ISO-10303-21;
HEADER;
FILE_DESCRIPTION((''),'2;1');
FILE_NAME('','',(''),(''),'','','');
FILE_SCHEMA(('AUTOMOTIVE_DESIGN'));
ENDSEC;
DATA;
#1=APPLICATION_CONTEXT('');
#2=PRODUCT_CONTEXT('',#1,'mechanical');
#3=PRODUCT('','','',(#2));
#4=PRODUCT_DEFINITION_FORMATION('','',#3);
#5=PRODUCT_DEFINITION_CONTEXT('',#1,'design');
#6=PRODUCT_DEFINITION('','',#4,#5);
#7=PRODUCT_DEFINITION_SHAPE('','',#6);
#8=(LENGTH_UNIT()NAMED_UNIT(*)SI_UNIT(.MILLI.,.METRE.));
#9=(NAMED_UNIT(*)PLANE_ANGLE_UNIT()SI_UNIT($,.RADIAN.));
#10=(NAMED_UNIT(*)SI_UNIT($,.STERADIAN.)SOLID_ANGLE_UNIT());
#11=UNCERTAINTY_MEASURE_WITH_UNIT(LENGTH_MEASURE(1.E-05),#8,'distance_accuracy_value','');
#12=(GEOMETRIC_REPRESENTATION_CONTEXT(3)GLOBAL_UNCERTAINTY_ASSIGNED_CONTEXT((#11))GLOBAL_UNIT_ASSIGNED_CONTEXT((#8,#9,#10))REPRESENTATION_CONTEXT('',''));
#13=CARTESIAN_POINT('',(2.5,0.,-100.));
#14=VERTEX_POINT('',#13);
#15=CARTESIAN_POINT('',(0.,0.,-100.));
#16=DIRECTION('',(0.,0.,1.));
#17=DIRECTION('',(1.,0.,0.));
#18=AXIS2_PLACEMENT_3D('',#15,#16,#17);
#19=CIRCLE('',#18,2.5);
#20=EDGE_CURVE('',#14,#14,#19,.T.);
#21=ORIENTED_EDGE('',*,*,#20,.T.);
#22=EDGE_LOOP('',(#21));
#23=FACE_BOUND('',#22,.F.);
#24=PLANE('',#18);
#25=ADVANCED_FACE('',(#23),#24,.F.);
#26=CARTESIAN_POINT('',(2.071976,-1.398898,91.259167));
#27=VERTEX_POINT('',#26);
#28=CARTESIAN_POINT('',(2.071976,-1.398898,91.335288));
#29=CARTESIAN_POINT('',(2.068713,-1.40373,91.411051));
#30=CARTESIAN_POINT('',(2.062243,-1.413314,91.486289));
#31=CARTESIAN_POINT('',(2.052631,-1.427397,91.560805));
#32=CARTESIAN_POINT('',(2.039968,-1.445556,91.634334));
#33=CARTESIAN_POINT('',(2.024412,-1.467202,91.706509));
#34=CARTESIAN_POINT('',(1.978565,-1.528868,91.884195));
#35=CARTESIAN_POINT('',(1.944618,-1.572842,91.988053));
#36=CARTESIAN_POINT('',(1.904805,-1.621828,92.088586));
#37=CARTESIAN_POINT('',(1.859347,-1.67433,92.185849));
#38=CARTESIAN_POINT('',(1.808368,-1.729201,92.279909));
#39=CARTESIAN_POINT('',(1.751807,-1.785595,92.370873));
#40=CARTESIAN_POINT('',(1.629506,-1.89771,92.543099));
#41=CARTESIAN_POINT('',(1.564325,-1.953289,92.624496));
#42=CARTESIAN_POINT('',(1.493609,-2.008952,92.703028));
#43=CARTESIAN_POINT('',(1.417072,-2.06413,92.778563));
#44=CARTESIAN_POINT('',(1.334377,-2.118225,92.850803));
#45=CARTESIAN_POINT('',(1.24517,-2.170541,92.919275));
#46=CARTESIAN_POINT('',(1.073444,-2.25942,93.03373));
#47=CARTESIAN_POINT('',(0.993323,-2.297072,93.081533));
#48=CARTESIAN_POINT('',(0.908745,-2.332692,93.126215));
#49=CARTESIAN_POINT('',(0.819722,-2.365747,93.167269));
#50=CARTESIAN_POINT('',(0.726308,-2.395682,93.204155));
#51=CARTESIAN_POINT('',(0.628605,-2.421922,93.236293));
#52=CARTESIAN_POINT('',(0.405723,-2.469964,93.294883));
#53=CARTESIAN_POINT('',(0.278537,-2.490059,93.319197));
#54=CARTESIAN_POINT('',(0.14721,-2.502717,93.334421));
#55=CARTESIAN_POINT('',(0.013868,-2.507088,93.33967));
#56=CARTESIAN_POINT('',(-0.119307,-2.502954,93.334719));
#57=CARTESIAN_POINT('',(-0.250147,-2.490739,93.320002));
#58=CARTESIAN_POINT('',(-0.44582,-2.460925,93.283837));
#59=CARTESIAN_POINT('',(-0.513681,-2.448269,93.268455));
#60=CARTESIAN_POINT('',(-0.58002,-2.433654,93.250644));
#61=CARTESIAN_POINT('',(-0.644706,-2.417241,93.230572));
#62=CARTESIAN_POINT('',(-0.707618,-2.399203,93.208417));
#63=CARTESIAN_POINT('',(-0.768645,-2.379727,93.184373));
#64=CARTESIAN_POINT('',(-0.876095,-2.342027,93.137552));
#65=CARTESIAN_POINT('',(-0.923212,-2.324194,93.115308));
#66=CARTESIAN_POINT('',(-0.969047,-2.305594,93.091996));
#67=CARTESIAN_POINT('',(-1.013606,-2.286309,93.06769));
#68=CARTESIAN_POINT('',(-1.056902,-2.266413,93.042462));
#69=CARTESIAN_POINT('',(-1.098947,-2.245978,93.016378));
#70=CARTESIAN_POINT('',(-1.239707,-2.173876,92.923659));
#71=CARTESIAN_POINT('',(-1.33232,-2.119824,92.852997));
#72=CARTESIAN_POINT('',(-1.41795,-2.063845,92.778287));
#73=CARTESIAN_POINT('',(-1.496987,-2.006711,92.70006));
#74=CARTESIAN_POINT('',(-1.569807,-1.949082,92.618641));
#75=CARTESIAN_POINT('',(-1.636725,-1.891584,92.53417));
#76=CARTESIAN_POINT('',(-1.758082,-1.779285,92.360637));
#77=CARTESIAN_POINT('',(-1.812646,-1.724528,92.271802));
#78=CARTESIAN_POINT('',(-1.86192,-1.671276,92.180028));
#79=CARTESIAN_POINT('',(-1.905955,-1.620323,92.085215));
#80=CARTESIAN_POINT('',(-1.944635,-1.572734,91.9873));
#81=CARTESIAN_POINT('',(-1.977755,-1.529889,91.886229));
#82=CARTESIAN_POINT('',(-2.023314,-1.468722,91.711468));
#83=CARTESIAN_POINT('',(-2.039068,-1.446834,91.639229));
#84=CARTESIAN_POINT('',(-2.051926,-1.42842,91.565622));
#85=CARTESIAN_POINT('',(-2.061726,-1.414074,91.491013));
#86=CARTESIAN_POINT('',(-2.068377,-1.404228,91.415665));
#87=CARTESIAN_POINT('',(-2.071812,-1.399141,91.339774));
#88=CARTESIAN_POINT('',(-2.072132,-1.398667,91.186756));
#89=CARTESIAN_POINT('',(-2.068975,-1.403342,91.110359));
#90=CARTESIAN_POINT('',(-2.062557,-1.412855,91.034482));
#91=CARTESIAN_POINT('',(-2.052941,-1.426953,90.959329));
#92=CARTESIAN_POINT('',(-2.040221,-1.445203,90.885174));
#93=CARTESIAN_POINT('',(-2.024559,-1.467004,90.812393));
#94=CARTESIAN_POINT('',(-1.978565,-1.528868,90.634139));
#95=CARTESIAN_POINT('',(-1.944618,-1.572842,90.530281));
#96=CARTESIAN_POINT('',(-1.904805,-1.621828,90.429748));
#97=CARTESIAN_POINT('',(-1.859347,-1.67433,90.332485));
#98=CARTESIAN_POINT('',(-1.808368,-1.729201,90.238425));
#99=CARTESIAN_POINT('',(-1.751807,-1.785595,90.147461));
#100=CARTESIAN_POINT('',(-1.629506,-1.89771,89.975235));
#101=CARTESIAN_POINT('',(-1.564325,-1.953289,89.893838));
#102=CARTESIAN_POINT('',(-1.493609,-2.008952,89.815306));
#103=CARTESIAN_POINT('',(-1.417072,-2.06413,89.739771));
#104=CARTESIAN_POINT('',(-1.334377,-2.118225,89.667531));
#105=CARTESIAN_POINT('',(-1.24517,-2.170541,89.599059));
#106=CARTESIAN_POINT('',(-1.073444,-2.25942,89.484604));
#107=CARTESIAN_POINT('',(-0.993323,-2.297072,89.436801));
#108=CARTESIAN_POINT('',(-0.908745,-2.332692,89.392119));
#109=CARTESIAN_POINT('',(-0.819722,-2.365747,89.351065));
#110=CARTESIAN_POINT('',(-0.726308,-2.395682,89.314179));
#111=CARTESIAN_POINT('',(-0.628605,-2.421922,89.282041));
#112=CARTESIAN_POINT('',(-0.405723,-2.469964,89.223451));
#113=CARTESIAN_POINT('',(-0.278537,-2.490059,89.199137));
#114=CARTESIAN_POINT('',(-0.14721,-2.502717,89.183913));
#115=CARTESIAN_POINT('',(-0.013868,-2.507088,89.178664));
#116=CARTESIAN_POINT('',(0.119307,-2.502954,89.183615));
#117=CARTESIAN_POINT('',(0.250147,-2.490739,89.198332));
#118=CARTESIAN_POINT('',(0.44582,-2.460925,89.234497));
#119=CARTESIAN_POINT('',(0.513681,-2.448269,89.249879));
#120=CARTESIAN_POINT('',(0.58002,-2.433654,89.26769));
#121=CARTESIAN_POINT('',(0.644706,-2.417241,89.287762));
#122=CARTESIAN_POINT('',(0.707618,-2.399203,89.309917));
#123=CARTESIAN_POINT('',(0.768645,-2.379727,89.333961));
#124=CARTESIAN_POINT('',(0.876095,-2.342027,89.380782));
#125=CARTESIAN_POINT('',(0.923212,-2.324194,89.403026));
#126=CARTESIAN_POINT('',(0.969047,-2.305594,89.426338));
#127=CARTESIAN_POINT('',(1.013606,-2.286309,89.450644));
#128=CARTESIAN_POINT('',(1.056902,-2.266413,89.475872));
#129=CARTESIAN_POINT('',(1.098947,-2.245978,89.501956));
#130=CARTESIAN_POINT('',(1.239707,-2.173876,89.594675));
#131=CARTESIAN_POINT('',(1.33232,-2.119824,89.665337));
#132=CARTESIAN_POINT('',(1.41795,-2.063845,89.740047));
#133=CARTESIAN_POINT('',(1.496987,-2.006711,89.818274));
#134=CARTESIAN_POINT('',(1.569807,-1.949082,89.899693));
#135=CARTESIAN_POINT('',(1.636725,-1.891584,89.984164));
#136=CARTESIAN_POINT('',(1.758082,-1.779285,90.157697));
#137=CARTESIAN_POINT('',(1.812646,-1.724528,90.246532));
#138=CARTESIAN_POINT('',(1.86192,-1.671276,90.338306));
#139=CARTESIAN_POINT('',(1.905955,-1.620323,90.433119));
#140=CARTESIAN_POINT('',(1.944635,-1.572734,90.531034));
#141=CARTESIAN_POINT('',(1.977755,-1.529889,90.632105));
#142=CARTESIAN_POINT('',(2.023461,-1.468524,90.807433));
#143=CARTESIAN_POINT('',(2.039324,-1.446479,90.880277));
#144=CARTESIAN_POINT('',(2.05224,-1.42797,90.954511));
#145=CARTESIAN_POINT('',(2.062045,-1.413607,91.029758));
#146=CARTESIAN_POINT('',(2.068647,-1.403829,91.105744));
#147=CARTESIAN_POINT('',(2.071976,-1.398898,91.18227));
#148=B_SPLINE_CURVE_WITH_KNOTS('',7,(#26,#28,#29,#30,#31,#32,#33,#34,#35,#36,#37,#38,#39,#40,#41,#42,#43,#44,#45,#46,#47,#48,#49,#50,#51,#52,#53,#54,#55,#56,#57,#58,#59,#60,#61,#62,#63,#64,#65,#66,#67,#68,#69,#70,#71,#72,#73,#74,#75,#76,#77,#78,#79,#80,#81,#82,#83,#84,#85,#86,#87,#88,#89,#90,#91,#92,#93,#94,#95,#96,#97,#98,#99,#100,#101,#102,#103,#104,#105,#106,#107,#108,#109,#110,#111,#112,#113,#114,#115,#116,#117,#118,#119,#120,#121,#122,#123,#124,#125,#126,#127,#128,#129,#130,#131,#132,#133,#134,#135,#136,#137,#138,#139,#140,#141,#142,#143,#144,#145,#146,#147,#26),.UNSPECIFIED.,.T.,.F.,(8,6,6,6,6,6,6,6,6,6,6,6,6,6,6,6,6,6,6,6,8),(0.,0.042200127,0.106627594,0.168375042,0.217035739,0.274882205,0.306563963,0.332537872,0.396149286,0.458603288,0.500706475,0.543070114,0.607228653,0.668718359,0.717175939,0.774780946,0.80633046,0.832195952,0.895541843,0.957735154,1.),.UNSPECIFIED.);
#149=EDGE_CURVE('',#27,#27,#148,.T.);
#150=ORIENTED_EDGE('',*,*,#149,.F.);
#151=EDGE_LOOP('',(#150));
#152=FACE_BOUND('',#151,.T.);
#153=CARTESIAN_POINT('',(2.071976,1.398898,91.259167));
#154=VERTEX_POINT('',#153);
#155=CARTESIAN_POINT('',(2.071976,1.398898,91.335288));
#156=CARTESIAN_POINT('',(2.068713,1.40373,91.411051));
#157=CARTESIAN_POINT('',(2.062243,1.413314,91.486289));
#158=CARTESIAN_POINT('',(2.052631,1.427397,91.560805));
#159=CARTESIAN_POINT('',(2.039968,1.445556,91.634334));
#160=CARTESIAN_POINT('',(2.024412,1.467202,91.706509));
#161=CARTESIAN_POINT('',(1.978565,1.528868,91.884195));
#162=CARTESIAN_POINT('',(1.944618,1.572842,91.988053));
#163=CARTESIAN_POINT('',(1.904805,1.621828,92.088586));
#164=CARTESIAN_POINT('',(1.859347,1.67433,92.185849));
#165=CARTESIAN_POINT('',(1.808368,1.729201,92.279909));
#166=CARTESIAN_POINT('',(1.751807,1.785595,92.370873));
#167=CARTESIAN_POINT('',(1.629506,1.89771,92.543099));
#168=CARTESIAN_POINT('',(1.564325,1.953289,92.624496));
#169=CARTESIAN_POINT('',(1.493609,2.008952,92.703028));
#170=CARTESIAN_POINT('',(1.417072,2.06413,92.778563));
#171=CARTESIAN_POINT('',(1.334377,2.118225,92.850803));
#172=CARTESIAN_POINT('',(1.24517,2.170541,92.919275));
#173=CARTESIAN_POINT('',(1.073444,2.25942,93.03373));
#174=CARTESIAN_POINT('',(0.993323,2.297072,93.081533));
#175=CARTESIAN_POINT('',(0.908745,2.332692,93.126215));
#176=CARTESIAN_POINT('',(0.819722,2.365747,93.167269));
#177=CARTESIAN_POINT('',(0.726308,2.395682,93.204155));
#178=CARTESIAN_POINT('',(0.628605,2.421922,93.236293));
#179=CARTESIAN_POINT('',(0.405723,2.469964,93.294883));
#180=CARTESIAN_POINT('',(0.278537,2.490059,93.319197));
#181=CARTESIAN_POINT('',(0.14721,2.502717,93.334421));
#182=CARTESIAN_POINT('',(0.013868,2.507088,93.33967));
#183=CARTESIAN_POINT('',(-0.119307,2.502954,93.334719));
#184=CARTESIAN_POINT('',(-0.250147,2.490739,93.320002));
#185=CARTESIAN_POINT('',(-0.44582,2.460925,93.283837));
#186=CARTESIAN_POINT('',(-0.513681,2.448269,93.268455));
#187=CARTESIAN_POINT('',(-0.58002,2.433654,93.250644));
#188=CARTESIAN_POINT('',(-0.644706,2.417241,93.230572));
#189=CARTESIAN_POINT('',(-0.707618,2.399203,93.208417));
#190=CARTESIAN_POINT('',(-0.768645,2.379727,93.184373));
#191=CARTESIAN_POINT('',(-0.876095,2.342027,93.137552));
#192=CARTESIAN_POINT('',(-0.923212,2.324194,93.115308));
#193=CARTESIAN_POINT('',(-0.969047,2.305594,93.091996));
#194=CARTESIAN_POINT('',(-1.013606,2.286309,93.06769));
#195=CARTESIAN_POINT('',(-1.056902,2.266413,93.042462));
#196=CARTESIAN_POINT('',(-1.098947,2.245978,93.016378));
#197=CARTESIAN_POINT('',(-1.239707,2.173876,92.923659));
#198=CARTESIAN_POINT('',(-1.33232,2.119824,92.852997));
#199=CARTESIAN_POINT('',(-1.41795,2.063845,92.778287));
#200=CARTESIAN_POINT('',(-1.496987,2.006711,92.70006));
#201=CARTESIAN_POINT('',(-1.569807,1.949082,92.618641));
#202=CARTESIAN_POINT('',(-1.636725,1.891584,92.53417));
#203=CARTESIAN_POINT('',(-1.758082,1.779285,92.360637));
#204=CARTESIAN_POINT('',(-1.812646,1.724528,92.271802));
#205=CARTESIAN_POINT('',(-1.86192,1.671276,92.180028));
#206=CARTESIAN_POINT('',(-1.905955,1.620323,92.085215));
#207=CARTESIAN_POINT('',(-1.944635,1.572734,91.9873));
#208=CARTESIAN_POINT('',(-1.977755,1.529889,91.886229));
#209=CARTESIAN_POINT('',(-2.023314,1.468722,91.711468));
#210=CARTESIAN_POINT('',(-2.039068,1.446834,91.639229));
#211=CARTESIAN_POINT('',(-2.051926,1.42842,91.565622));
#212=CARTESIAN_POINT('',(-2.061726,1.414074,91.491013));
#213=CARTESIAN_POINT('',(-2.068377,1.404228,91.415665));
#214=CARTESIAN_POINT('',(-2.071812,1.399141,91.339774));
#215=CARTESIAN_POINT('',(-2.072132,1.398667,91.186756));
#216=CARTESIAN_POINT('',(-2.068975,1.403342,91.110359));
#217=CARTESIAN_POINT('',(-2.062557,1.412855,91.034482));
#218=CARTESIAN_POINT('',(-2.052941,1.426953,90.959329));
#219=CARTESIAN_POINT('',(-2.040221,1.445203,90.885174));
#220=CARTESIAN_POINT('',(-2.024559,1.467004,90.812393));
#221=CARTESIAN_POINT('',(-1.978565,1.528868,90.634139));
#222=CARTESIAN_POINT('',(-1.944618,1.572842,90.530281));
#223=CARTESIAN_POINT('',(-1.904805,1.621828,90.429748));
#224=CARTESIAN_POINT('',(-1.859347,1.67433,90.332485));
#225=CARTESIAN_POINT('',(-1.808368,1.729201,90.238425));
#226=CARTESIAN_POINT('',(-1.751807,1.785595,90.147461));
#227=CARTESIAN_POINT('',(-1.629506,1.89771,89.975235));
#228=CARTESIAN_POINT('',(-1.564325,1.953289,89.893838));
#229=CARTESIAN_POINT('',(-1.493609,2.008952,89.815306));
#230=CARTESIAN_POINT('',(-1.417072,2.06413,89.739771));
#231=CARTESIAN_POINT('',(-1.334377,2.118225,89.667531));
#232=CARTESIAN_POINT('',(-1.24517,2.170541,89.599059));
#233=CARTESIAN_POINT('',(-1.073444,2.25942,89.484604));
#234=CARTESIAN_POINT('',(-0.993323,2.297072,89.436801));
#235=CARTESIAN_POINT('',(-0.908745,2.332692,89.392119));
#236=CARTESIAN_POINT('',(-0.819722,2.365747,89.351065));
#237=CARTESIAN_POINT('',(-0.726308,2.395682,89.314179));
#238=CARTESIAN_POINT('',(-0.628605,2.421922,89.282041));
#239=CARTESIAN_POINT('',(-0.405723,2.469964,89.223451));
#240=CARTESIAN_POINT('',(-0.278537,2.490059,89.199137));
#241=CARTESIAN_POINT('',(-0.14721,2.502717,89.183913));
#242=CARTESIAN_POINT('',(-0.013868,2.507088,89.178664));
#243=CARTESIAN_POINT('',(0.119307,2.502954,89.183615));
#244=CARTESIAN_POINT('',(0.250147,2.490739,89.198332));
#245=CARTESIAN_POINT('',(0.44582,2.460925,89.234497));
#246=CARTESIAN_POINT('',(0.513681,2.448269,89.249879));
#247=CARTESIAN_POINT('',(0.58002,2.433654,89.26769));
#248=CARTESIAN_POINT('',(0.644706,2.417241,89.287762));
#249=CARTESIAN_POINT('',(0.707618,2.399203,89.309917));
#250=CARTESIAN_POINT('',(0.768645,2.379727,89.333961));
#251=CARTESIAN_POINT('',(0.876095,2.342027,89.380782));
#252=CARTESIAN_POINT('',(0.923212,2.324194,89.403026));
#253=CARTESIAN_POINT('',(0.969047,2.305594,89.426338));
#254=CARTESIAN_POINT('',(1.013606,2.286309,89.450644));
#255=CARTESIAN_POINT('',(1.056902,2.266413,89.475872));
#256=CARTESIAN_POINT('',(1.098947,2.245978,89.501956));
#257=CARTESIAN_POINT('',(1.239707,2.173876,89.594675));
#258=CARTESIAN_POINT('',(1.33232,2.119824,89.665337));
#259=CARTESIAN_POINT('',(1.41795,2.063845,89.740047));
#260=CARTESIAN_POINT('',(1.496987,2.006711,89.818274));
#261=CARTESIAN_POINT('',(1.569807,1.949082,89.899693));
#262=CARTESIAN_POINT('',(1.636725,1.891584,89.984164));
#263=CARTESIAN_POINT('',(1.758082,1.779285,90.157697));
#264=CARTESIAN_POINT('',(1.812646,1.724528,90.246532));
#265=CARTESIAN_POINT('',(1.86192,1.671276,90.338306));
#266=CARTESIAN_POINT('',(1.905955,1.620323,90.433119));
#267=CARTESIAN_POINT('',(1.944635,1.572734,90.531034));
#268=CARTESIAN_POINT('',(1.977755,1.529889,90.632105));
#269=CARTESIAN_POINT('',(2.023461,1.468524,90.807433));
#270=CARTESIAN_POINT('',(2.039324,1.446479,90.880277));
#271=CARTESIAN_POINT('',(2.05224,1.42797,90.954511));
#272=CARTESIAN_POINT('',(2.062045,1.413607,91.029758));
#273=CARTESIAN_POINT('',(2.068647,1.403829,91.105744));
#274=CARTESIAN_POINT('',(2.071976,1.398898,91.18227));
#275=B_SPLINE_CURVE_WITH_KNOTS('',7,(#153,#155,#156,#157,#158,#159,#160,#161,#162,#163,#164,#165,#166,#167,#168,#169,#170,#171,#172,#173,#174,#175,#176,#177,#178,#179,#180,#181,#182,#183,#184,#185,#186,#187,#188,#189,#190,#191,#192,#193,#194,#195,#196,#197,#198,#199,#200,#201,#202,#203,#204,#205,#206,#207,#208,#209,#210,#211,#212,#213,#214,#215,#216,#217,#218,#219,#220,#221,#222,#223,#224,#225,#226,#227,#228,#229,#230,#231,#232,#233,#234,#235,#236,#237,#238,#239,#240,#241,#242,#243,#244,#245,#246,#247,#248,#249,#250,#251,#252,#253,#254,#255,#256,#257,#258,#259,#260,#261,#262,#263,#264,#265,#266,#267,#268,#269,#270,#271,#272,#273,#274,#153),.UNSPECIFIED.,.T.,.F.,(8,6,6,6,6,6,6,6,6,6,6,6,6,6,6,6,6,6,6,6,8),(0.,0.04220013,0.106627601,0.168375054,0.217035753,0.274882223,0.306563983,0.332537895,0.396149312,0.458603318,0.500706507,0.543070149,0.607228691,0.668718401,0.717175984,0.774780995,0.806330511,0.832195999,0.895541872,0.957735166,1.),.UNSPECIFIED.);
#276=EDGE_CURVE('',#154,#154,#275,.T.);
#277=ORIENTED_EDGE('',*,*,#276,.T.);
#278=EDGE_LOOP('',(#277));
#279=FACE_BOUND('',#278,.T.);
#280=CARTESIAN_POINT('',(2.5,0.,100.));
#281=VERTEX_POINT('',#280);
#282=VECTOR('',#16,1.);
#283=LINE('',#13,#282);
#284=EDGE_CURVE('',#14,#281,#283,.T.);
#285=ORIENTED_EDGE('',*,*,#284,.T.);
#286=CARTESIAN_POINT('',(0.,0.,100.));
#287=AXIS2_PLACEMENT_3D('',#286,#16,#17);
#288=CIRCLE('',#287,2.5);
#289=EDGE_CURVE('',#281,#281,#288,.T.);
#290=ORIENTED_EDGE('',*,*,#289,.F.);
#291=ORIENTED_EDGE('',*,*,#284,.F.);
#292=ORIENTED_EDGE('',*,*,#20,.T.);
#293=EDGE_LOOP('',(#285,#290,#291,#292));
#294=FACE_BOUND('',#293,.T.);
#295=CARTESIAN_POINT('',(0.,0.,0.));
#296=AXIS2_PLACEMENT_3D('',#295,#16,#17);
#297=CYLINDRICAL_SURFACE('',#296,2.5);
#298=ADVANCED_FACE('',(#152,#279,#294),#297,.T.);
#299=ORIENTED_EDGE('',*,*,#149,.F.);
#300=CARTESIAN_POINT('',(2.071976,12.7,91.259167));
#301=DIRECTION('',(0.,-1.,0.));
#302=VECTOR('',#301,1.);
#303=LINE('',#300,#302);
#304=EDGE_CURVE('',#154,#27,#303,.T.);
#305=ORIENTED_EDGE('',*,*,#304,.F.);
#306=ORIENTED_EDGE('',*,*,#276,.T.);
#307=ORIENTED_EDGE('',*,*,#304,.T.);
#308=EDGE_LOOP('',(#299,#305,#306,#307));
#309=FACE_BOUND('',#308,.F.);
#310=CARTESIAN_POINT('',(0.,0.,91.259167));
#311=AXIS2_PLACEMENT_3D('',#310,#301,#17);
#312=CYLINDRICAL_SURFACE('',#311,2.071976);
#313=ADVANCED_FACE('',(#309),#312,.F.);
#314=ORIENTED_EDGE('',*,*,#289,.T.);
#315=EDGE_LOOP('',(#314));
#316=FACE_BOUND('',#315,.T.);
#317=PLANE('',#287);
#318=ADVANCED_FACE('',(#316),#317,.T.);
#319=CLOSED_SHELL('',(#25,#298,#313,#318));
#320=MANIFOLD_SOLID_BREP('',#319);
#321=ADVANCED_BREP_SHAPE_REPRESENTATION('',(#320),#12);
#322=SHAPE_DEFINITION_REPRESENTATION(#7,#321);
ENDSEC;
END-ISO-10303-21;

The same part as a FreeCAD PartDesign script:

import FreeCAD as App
import Part
import Sketcher
from FreeCAD import Vector
Q = App.Units.Quantity

doc = App.newDocument("Part")
body = doc.addObject("PartDesign::Body", "Body")

# Sketch on XY plane
sketch1 = doc.addObject("Sketcher::SketchObject", "Sketch")
body.addObject(sketch1)
sketch1.AttachmentSupport = (doc.XY_Plane, [""])
sketch1.MapMode = "FlatFace"
sketch1.addGeometry(Part.Circle(Vector(0, 0, 0), Vector(0, 0, 1), 2.5), False)
sketch1.addConstraint(Sketcher.Constraint("Coincident", 0, 3, -1, 1))
sketch1.addConstraint(Sketcher.Constraint("Diameter", 0, Q("5 mm")))
pad1 = doc.addObject("PartDesign::Pad", "Pad")
body.addObject(pad1)
pad1.Profile = sketch1
pad1.Length = 200
pad1.Midplane = True

# Sketch on XZ plane
sketch2 = doc.addObject("Sketcher::SketchObject", "Sketch001")
body.addObject(sketch2)
sketch2.AttachmentSupport = (doc.XZ_Plane, [""])
sketch2.MapMode = "FlatFace"
sketch2.addGeometry(Part.Circle(Vector(0, 91.3, 0), Vector(0, 0, 1), 2.1), False)
sketch2.addConstraint(Sketcher.Constraint("PointOnObject", 0, 3, -2))
sketch2.addConstraint(Sketcher.Constraint("Diameter", 0, Q("4.143952 mm")))
sketch2.addConstraint(Sketcher.Constraint("DistanceY", -1, 1, 0, 3, Q("91.259167 mm")))
pocket1 = doc.addObject("PartDesign::Pocket", "Pocket")
body.addObject(pocket1)
pocket1.Profile = sketch2
pocket1.Length = 25.4
pocket1.Midplane = True

doc.recompute()
